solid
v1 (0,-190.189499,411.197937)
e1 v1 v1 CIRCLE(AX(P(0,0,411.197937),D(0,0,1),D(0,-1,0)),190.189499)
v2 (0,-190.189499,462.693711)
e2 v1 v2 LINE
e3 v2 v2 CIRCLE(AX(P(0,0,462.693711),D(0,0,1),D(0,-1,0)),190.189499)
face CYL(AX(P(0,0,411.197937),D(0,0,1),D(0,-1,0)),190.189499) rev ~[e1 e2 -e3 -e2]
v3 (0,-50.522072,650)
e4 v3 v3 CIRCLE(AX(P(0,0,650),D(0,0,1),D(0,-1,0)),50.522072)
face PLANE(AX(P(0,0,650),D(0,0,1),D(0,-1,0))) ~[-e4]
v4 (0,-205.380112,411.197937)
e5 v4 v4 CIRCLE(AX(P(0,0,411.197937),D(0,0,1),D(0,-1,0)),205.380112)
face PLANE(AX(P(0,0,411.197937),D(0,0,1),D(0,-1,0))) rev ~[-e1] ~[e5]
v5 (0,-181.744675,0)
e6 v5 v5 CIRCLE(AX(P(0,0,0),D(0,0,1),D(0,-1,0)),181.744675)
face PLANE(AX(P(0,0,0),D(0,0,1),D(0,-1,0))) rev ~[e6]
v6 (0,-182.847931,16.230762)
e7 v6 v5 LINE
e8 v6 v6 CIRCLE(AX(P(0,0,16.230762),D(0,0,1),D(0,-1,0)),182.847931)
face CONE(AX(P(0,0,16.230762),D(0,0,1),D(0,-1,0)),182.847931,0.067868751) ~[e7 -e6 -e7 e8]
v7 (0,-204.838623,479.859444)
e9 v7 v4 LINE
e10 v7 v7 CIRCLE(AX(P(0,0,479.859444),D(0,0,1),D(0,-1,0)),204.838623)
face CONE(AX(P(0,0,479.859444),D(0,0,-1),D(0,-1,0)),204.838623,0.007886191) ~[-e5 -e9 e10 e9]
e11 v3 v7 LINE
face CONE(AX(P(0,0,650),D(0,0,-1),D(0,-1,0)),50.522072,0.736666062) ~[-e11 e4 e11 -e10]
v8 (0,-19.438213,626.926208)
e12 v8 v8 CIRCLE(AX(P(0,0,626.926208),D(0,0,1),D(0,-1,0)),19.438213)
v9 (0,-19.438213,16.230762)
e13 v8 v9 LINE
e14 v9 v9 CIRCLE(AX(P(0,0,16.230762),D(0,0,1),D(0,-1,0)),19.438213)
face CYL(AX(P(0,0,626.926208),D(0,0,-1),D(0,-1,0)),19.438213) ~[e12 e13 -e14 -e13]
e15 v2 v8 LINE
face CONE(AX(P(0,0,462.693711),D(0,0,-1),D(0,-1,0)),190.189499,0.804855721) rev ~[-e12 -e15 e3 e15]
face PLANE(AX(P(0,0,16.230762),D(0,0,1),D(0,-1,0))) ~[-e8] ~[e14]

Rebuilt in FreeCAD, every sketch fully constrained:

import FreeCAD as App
import Part
import Sketcher
from FreeCAD import Vector


def add_polygon(sketch, points):
    """Adds a closed chain of lines whose ends are joined by coincident constraints."""
    first, n = sketch.GeometryCount, len(points)
    for a, b in zip(points, points[1:] + points[:1]):
        sketch.addGeometry(Part.LineSegment(App.Vector(*a, 0), App.Vector(*b, 0)), False)
    for i in range(n):
        sketch.addConstraint(Sketcher.Constraint("Coincident", first + i, 2, first + (i + 1) % n, 1))

doc = App.newDocument("Part")
body = doc.addObject("PartDesign::Body", "Body")

sketch1 = body.newObject("Sketcher::SketchObject", "Sketch")
sketch1.AttachmentSupport = (doc.getObject("YZ_Plane"), [""])
sketch1.MapMode = "FlatFace"
add_polygon(sketch1, [(0, 0), (0, 650), (-51, 650), (-205, 480), (-205, 411), (-190, 411), (-190, 463), (-19, 627), (-19, 16), (-183, 16), (-182, 0)])
sketch1.addConstraint([
    Sketcher.Constraint("Vertical", 0),
    Sketcher.Constraint("Horizontal", 1),
    Sketcher.Constraint("Horizontal", 4),
    Sketcher.Constraint("Vertical", 5),
    Sketcher.Constraint("Vertical", 7),
    Sketcher.Constraint("Horizontal", 8),
    Sketcher.Constraint("Horizontal", 10),
    Sketcher.Constraint("Coincident", 10, 2, -1, 1),
    Sketcher.Constraint("DistanceY", 0, 1, 0, 2, 650.0),
    Sketcher.Constraint("DistanceX", 8, 2, 8, 1, 163.409718),
    Sketcher.Constraint("DistanceX", 4, 2, -1, 1, 190.189499),
    Sketcher.Constraint("DistanceX", 3, 2, 7, 2, 185.941899),
    Sketcher.Constraint("Distance", 6, 236.914151),
    Sketcher.Constraint("DistanceX", 1, 2, 1, 1, 50.522072),
    Sketcher.Constraint("DistanceX", 4, 1, 4, 2, 15.190613),
    Sketcher.Constraint("DistanceX", 10, 1, 10, 2, 181.744675),
    Sketcher.Constraint("DistanceY", 5, 1, 5, 2, 51.495774),
    Sketcher.Constraint("DistanceY", 7, 2, 7, 1, 610.695446),
    Sketcher.Constraint("DistanceY", -1, 1, 5, 2, 462.693711),
    Sketcher.Constraint("DistanceX", 2, 2, 1, 2, 154.316551),
    Sketcher.Constraint("Distance", 2, 229.698513),
])
revolution = body.newObject("PartDesign::Revolution", "Revolution")
revolution.Profile = sketch1
revolution.ReferenceAxis = (sketch1, ["V_Axis"])
revolution.Angle = 360

doc.recompute()
